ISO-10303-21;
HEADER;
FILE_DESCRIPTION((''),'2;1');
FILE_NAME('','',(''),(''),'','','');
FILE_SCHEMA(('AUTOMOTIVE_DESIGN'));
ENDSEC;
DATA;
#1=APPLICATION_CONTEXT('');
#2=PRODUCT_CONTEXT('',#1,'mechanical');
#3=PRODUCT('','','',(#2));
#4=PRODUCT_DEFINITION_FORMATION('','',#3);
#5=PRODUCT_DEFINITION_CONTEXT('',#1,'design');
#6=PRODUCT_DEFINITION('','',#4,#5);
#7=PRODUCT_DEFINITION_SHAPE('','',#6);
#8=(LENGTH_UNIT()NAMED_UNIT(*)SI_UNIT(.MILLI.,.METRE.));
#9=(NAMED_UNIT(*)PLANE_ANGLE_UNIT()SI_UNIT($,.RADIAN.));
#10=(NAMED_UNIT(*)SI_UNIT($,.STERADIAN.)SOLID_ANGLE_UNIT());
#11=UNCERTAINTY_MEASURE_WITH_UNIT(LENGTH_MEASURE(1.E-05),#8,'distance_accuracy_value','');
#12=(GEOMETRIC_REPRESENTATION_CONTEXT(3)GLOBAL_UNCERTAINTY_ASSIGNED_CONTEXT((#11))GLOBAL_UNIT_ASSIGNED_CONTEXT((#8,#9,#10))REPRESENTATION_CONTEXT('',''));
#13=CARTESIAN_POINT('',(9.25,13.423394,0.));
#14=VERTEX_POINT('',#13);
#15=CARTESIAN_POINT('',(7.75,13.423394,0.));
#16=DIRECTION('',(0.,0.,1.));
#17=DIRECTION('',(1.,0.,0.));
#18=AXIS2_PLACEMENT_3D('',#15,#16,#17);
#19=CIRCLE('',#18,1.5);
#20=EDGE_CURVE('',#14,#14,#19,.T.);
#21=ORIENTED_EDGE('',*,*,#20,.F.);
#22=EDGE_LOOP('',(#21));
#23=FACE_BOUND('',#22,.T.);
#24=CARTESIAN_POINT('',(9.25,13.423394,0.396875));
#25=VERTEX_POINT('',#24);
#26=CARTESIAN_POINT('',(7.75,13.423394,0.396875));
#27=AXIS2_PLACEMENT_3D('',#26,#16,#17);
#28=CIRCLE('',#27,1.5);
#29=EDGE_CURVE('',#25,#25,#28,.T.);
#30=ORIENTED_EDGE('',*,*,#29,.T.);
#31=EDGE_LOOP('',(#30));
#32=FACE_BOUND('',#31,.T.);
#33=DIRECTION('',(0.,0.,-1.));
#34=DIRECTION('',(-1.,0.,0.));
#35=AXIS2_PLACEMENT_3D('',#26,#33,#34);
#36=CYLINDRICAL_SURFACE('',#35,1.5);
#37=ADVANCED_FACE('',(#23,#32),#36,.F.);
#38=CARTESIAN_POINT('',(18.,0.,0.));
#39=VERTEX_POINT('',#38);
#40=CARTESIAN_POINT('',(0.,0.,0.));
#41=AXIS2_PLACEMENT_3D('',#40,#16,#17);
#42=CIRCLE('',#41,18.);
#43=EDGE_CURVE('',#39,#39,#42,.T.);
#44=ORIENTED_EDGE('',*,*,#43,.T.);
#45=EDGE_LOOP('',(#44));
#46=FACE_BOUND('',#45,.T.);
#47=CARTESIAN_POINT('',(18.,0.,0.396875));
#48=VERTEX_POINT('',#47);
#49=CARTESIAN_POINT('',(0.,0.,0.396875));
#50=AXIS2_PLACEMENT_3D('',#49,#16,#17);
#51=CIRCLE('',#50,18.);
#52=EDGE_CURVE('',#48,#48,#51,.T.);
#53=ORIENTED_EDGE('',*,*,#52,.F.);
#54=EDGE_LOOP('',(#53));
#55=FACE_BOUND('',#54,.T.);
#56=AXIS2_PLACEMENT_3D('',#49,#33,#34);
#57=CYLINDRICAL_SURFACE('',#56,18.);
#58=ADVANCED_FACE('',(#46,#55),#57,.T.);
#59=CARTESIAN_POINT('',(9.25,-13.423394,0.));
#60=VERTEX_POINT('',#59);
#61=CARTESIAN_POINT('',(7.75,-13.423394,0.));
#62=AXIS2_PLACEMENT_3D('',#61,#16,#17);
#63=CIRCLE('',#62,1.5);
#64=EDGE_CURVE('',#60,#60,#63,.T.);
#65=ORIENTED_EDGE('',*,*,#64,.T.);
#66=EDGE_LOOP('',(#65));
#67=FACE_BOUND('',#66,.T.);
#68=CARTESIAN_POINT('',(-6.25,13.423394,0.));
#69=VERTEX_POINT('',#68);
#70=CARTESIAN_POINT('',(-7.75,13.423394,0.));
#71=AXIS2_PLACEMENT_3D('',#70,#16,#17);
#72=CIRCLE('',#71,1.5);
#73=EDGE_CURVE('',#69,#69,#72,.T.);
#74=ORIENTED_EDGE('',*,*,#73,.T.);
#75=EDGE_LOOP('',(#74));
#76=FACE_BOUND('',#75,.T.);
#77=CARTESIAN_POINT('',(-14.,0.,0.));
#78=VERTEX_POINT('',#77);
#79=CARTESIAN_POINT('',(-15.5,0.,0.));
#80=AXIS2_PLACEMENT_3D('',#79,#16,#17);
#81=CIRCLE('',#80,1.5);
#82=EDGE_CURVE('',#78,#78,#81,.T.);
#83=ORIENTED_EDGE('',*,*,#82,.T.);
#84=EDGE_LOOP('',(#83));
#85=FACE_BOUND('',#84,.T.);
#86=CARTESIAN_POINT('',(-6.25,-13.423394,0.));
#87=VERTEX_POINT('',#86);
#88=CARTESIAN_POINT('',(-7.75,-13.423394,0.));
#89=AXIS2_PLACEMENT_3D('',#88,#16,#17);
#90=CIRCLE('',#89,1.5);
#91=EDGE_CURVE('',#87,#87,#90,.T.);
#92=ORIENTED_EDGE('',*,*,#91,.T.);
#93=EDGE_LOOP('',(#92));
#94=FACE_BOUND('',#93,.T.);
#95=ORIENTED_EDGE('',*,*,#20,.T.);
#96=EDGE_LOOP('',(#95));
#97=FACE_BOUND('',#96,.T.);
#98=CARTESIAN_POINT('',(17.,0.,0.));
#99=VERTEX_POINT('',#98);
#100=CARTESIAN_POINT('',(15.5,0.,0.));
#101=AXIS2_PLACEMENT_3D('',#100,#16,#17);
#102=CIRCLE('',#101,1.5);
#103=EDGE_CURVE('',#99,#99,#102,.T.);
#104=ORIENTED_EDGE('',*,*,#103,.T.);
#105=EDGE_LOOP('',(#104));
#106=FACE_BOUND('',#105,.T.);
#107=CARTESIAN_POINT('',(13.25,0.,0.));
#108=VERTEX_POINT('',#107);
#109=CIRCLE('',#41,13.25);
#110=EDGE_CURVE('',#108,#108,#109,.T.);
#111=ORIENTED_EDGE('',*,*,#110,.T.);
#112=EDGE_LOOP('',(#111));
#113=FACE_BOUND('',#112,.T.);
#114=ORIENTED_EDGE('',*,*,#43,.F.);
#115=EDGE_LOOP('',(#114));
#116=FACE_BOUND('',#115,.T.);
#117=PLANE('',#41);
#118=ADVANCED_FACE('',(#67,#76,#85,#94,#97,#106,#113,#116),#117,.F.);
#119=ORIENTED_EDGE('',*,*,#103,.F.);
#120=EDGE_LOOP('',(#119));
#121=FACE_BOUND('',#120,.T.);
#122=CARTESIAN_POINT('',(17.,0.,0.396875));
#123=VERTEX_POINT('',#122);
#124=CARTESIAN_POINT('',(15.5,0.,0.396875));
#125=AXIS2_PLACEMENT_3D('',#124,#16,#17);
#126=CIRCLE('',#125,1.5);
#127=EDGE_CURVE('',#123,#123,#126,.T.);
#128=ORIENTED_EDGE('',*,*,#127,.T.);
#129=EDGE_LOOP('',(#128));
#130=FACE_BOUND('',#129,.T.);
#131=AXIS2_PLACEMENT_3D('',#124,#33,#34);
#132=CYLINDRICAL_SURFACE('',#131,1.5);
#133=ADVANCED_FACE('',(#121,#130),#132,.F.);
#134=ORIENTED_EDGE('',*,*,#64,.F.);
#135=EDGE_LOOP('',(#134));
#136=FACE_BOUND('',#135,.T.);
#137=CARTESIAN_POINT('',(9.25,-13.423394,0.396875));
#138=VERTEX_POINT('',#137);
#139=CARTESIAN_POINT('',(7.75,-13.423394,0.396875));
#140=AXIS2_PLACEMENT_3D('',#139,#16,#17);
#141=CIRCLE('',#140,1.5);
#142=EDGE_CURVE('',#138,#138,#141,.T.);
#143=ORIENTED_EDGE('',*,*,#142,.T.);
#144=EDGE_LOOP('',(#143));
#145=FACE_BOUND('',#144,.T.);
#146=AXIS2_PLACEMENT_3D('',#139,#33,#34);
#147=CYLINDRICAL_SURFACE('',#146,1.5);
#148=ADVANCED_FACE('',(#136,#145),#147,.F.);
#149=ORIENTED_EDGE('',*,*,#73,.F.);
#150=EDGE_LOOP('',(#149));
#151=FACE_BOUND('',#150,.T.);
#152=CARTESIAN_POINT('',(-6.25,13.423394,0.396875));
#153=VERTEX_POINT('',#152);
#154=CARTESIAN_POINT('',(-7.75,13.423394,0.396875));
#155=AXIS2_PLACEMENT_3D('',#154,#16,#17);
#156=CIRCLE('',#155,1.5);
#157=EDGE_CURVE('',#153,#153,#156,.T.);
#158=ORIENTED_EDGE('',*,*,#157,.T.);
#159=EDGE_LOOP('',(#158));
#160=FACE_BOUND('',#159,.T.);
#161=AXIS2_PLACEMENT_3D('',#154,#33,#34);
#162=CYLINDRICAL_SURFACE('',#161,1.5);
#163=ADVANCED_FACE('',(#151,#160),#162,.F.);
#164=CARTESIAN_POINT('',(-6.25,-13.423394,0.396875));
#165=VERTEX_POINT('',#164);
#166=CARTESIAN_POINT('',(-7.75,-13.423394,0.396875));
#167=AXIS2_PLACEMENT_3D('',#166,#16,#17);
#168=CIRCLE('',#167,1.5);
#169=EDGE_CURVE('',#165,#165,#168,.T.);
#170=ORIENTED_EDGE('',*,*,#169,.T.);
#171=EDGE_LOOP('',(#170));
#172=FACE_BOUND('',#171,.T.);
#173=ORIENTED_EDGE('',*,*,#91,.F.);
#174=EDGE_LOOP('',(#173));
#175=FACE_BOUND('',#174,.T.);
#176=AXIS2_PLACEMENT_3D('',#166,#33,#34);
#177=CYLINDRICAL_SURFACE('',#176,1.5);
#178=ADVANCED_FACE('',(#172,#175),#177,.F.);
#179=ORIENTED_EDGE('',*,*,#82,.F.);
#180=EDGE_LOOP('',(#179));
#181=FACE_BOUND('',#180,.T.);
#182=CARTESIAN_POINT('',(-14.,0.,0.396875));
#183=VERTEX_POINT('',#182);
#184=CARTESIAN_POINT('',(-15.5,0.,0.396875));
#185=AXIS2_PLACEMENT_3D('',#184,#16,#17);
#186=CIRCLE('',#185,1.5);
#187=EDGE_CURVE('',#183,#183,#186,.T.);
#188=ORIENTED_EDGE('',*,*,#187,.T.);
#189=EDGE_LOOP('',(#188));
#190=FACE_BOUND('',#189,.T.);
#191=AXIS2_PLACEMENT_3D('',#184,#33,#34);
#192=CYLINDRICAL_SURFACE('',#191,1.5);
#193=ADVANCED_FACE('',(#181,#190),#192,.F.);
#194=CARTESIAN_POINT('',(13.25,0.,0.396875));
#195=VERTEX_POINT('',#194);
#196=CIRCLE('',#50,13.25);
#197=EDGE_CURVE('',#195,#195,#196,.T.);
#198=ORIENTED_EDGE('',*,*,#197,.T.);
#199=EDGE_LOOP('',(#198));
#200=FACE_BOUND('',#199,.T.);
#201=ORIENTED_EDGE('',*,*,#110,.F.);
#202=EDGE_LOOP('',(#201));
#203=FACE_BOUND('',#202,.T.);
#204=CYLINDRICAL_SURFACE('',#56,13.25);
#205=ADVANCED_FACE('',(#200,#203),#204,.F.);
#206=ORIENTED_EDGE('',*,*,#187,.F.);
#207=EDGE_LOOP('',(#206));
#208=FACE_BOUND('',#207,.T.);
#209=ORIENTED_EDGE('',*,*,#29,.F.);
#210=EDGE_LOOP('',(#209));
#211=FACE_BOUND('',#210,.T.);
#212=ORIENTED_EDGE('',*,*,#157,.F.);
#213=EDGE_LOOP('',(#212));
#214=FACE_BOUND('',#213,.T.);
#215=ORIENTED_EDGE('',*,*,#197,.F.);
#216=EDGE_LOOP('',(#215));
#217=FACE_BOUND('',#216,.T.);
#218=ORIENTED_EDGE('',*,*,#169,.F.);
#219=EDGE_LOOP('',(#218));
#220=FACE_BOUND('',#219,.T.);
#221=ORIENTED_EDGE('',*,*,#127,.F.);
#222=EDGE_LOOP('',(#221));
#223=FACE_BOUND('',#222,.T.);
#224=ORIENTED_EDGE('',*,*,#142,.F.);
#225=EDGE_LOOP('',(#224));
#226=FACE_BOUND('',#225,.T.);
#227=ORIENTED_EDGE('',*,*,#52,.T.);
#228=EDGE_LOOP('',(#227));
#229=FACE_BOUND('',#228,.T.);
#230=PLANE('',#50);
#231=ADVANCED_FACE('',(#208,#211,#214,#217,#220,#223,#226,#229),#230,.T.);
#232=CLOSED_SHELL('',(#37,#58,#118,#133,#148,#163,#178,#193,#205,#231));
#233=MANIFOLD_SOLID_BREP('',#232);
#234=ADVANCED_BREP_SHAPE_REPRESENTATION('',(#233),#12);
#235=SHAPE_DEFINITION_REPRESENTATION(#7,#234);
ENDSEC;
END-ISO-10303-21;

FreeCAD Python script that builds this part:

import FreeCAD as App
import Part
import Sketcher
from FreeCAD import Vector
Q = App.Units.Quantity

doc = App.newDocument("Part")
body = doc.addObject("PartDesign::Body", "Body")

# Sketch on XY plane
sketch1 = doc.addObject("Sketcher::SketchObject", "Sketch")
body.addObject(sketch1)
sketch1.AttachmentSupport = (doc.XY_Plane, [""])
sketch1.MapMode = "FlatFace"
sketch1.addGeometry([
    Part.Circle(Vector(0, 0, 0), Vector(0, 0, 1), 18),  # 0
    Part.Circle(Vector(-7.75, -13.423394, 0), Vector(0, 0, 1), 1.5),  # 1
    Part.Circle(Vector(7.75, -13.423394, 0), Vector(0, 0, 1), 1.5),  # 2
    Part.Circle(Vector(-15.5, 0, 0), Vector(0, 0, 1), 1.5),  # 3
    Part.Circle(Vector(-7.75, 13.423394, 0), Vector(0, 0, 1), 1.5),  # 4
    Part.Circle(Vector(0, 0, 0), Vector(0, 0, 1), 13.25),  # 5
    Part.Circle(Vector(15.5, 0, 0), Vector(0, 0, 1), 1.5),  # 6
    Part.Circle(Vector(7.75, 13.423394, 0), Vector(0, 0, 1), 1.5),  # 7
], False)
sketch1.addConstraint([
    Sketcher.Constraint("Coincident", 0, 3, -1, 1),
    Sketcher.Constraint("Coincident", 5, 3, -1, 1),
    Sketcher.Constraint("Equal", 1, 2),
    Sketcher.Constraint("Equal", 2, 3),
    Sketcher.Constraint("Equal", 3, 4),
    Sketcher.Constraint("Equal", 4, 6),
    Sketcher.Constraint("Equal", 6, 7),
    Sketcher.Constraint("Symmetric", 2, 3, 4, 3, -1, 1),
    Sketcher.Constraint("Symmetric", 3, 3, 6, 3, -1, 1),
    Sketcher.Constraint("Symmetric", 1, 3, 7, 3, -1, 1),
    Sketcher.Constraint("Symmetric", 1, 3, 2, 3, -2),
    Sketcher.Constraint("PointOnObject", 3, 3, -1),
    Sketcher.Constraint("Diameter", 0, Q("36 mm")),
    Sketcher.Constraint("Diameter", 1, Q("3 mm")),
    Sketcher.Constraint("Diameter", 5, Q("26.5 mm")),
    Sketcher.Constraint("DistanceX", 3, 3, -1, 1, Q("15.5 mm")),
    Sketcher.Constraint("DistanceX", 1, 3, 2, 3, Q("15.5 mm")),
    Sketcher.Constraint("DistanceY", 1, 3, -1, 1, Q("13.423394 mm")),
])
pad1 = doc.addObject("PartDesign::Pad", "Pad")
body.addObject(pad1)
pad1.Profile = sketch1
pad1.Length = 0.396875

doc.recompute()
